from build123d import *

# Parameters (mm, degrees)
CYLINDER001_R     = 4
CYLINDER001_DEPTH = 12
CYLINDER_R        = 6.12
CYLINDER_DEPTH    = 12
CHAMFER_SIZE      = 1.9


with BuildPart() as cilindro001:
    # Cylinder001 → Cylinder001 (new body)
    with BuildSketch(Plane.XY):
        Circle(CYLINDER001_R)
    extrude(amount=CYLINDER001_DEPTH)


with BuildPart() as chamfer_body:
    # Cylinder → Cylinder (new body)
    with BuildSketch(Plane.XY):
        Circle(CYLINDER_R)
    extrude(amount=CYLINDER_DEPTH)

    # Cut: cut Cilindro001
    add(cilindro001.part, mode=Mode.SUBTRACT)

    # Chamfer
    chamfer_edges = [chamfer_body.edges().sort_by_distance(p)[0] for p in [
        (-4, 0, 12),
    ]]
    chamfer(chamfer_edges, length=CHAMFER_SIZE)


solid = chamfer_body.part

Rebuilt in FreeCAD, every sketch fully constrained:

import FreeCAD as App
import Part
import Sketcher


def edges_at(feature, points):
    """Names of the edges that pass closest to the given points."""
    edges = feature.Shape.Edges
    near = lambda p: min(range(len(edges)), key=lambda i: edges[i].distToShape(Part.Vertex(*p))[0])
    return sorted({f"Edge{near(p) + 1}" for p in points})

doc = App.newDocument("Part")
body = doc.addObject("PartDesign::Body", "Body")

# Sketch on XY plane
sketch1 = doc.addObject("Sketcher::SketchObject", "Sketch")
body.addObject(sketch1)
sketch1.AttachmentSupport = (doc.XY_Plane, [""])
sketch1.MapMode = "FlatFace"
sketch1.addGeometry(Part.Circle(App.Vector(0, 0, 0), App.Vector(0, 0, 1), 4), False)
sketch1.addConstraint(Sketcher.Constraint("Coincident", 0, 3, -1, 1))
sketch1.addConstraint(Sketcher.Constraint("Diameter", 0, 8.0))
pad1 = doc.addObject("PartDesign::Pad", "Pad")
body.addObject(pad1)
pad1.Profile = sketch1
pad1.Length = 12
body2 = doc.addObject("PartDesign::Body", "Body001")

# Sketch on XY plane
sketch2 = doc.addObject("Sketcher::SketchObject", "Sketch001")
body2.addObject(sketch2)
sketch2.AttachmentSupport = (doc.getObject("XY_Plane001"), [""])
sketch2.MapMode = "FlatFace"
sketch2.addGeometry(Part.Circle(App.Vector(0, 0, 0), App.Vector(0, 0, 1), 6), False)
sketch2.addConstraint(Sketcher.Constraint("Coincident", 0, 3, -1, 1))
sketch2.addConstraint(Sketcher.Constraint("Diameter", 0, 12.24))
pad2 = doc.addObject("PartDesign::Pad", "Pad001")
body2.addObject(pad2)
pad2.Profile = sketch2
pad2.Length = 12
doc.recompute()

boolean = doc.addObject("PartDesign::Boolean", "Boolean")
body2.addObject(boolean)
boolean.Type = "Cut"
boolean.addObjects([body])
doc.recompute()

chamfer = doc.addObject("PartDesign::Chamfer", "Chamfer")
body2.addObject(chamfer)
chamfer.Base = (boolean, edges_at(boolean, [(-4, 0, 12)]))
chamfer.Size = 1.9

doc.recompute()
